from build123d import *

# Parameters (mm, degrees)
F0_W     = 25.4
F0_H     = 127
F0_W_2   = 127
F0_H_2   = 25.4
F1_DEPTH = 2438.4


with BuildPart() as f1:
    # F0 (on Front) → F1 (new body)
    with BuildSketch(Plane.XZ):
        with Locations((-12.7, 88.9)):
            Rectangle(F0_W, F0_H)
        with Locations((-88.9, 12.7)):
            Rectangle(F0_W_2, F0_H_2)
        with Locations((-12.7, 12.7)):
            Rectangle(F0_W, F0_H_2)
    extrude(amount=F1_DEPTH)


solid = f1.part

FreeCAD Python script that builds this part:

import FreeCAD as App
import Part
import Sketcher
from FreeCAD import Vector
Q = App.Units.Quantity


def add_polygon(sketch, points):
    """Adds a closed chain of lines whose ends are joined by coincident constraints."""
    first, n = sketch.GeometryCount, len(points)
    for a, b in zip(points, points[1:] + points[:1]):
        sketch.addGeometry(Part.LineSegment(App.Vector(*a, 0), App.Vector(*b, 0)), False)
    for i in range(n):
        sketch.addConstraint(Sketcher.Constraint("Coincident", first + i, 2, first + (i + 1) % n, 1))

doc = App.newDocument("Part")
body = doc.addObject("PartDesign::Body", "Body")

# Sketch on XZ plane
sketch1 = body.newObject("Sketcher::SketchObject", "Sketch")
sketch1.AttachmentSupport = (doc.getObject("XZ_Plane"), [""])
sketch1.MapMode = "FlatFace"
add_polygon(sketch1, [(-25, 152), (-25, 25), (-152, 25), (-152, 0), (0, 0), (0, 152)])  # lines 0-5
sketch1.addConstraint(Sketcher.Constraint("Vertical", 0))
sketch1.addConstraint(Sketcher.Constraint("Horizontal", 1))
sketch1.addConstraint(Sketcher.Constraint("Vertical", 2))
sketch1.addConstraint(Sketcher.Constraint("Horizontal", 3))
sketch1.addConstraint(Sketcher.Constraint("Vertical", 4))
sketch1.addConstraint(Sketcher.Constraint("Horizontal", 5))
sketch1.addConstraint(Sketcher.Constraint("Coincident", 3, 2, -1, 1))
sketch1.addConstraint(Sketcher.Constraint("Equal", 1, 0))
sketch1.addConstraint(Sketcher.Constraint("Equal", 5, 2))
sketch1.addConstraint(Sketcher.Constraint("DistanceX", 1, 2, 1, 1, Q("5 in")))
sketch1.addConstraint(Sketcher.Constraint("DistanceX", 3, 1, 3, 2, Q("6 in")))
pad1 = body.newObject("PartDesign::Pad", "Pad")
pad1.Profile = sketch1
pad1.Length = Q("96 in")

doc.recompute()
